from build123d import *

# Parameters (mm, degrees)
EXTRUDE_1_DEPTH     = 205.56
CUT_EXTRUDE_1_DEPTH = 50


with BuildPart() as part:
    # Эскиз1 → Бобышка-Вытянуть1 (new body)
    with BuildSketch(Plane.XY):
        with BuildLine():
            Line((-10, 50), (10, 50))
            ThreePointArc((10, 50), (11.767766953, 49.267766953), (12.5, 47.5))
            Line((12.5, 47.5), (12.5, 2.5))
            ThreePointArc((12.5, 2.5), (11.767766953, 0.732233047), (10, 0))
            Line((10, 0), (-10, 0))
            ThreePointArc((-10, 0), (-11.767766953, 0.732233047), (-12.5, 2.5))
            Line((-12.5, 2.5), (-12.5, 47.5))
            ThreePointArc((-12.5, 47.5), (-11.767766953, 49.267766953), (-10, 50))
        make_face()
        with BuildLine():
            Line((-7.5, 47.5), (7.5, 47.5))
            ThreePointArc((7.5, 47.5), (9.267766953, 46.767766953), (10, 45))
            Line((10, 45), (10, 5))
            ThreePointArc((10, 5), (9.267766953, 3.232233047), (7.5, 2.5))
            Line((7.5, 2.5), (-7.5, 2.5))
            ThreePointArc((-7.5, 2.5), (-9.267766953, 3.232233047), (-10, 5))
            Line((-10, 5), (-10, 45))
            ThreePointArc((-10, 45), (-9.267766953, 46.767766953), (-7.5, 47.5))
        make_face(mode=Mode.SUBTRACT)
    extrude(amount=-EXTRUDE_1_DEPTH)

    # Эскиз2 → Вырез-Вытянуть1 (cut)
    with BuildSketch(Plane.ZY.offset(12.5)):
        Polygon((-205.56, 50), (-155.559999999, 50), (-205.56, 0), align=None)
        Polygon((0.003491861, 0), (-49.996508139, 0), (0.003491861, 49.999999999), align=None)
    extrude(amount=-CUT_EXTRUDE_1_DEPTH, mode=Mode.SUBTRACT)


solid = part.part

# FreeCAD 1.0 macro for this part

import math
import FreeCAD as App
import Part
import Sketcher

doc = App.newDocument("Part")
body = doc.addObject("PartDesign::Body", "Body")

sketch1 = body.newObject("Sketcher::SketchObject", "Sketch")
sketch1.AttachmentSupport = (doc.getObject("XY_Plane"), [""])
sketch1.MapMode = "FlatFace"
sketch1.addGeometry([
    Part.LineSegment(App.Vector(10, 50, 0), App.Vector(-10, 50, 0)),
    Part.ArcOfCircle(Part.Circle(App.Vector(-10, 47.5, 0), App.Vector(0, 0, 1), 2.5), math.radians(90), math.radians(180)),
    Part.LineSegment(App.Vector(-12.5, 47.5, 0), App.Vector(-12.5, 2.5, 0)),
    Part.ArcOfCircle(Part.Circle(App.Vector(-10, 2.5, 0), App.Vector(0, 0, 1), 2.5), math.radians(180), math.radians(270)),
    Part.LineSegment(App.Vector(-10, 0, 0), App.Vector(10, 0, 0)),
    Part.ArcOfCircle(Part.Circle(App.Vector(10, 2.5, 0), App.Vector(0, 0, 1), 2.5), math.radians(-90), math.radians(0)),
    Part.LineSegment(App.Vector(12.5, 2.5, 0), App.Vector(12.5, 47.5, 0)),
    Part.ArcOfCircle(Part.Circle(App.Vector(10, 47.5, 0), App.Vector(0, 0, 1), 2.5), math.radians(0), math.radians(90)),
    Part.LineSegment(App.Vector(-7.5, 47.5, 0), App.Vector(7.5, 47.5, 0)),
    Part.ArcOfCircle(Part.Circle(App.Vector(7.5, 45, 0), App.Vector(0, 0, 1), 2.5), math.radians(0), math.radians(90)),
    Part.LineSegment(App.Vector(10, 45, 0), App.Vector(10, 5, 0)),
    Part.ArcOfCircle(Part.Circle(App.Vector(7.5, 5, 0), App.Vector(0, 0, 1), 2.5), math.radians(-90), math.radians(0)),
    Part.LineSegment(App.Vector(7.5, 2.5, 0), App.Vector(-7.5, 2.5, 0)),
    Part.ArcOfCircle(Part.Circle(App.Vector(-7.5, 5, 0), App.Vector(0, 0, 1), 2.5), math.radians(180), math.radians(270)),
    Part.LineSegment(App.Vector(-10, 5, 0), App.Vector(-10, 45, 0)),
    Part.ArcOfCircle(Part.Circle(App.Vector(-7.5, 45, 0), App.Vector(0, 0, 1), 2.5), math.radians(90), math.radians(180)),
], False)
sketch1.addConstraint([
    Sketcher.Constraint("Tangent", 0, 2, 1, 1),
    Sketcher.Constraint("Tangent", 1, 2, 2, 1),
    Sketcher.Constraint("Tangent", 2, 2, 3, 1),
    Sketcher.Constraint("Tangent", 3, 2, 4, 1),
    Sketcher.Constraint("Tangent", 4, 2, 5, 1),
    Sketcher.Constraint("Tangent", 5, 2, 6, 1),
    Sketcher.Constraint("Tangent", 6, 2, 7, 1),
    Sketcher.Constraint("Tangent", 7, 2, 0, 1),
    Sketcher.Constraint("Tangent", 8, 2, 9, 2),
    Sketcher.Constraint("Tangent", 9, 1, 10, 1),
    Sketcher.Constraint("Tangent", 10, 2, 11, 2),
    Sketcher.Constraint("Tangent", 11, 1, 12, 1),
    Sketcher.Constraint("Tangent", 12, 2, 13, 2),
    Sketcher.Constraint("Tangent", 13, 1, 14, 1),
    Sketcher.Constraint("Tangent", 14, 2, 15, 2),
    Sketcher.Constraint("Tangent", 15, 1, 8, 1),
    Sketcher.Constraint("Horizontal", 0),
    Sketcher.Constraint("Vertical", 2),
    Sketcher.Constraint("Horizontal", 4),
    Sketcher.Constraint("Vertical", 6),
    Sketcher.Constraint("Horizontal", 8),
    Sketcher.Constraint("Vertical", 10),
    Sketcher.Constraint("Horizontal", 12),
    Sketcher.Constraint("Vertical", 14),
    Sketcher.Constraint("Equal", 1, 3),
    Sketcher.Constraint("Equal", 3, 5),
    Sketcher.Constraint("Equal", 5, 7),
    Sketcher.Constraint("Equal", 7, 9),
    Sketcher.Constraint("Equal", 9, 11),
    Sketcher.Constraint("Equal", 11, 13),
    Sketcher.Constraint("Equal", 13, 15),
    Sketcher.Constraint("Symmetric", 3, 2, 4, 2, -1, 1),
    Sketcher.Constraint("Horizontal", 6, 2, 8, 2),
    Sketcher.Constraint("Horizontal", 5, 2, 11, 1),
    Sketcher.Constraint("Vertical", 7, 2, 9, 1),
    Sketcher.Constraint("Vertical", 3, 2, 13, 1),
    Sketcher.Constraint("Radius", 1, 2.5),
    Sketcher.Constraint("DistanceX", 0, 2, 0, 1, 20.0),
    Sketcher.Constraint("DistanceY", 2, 2, 2, 1, 45.0),
])
pad1 = body.newObject("PartDesign::Pad", "Pad")
pad1.Profile = sketch1
pad1.Length = 205.56
pad1.Reversed = True

sketch2 = body.newObject("Sketcher::SketchObject", "Sketch001")
sketch2.AttachmentSupport = (doc.getObject("YZ_Plane"), [""])
sketch2.MapMode = "FlatFace"
sketch2.AttachmentOffset = App.Placement(App.Vector(0, 0, -12.5), App.Rotation())
sketch2.addGeometry([
    Part.LineSegment(App.Vector(50, -156, 0), App.Vector(50, -206, 0)),
    Part.LineSegment(App.Vector(50, -206, 0), App.Vector(0, -206, 0)),
    Part.LineSegment(App.Vector(0, -206, 0), App.Vector(50, -156, 0)),
    Part.LineSegment(App.Vector(0, -50, 0), App.Vector(0, 0, 0)),
    Part.LineSegment(App.Vector(0, 0, 0), App.Vector(50, 0, 0)),
    Part.LineSegment(App.Vector(50, 0, 0), App.Vector(0, -50, 0)),
], False)
sketch2.addConstraint([
    Sketcher.Constraint("Coincident", 0, 2, 1, 1),
    Sketcher.Constraint("Coincident", 1, 2, 2, 1),
    Sketcher.Constraint("Coincident", 2, 2, 0, 1),
    Sketcher.Constraint("Coincident", 3, 2, 4, 1),
    Sketcher.Constraint("Coincident", 4, 2, 5, 1),
    Sketcher.Constraint("Coincident", 5, 2, 3, 1),
    Sketcher.Constraint("Vertical", 0),
    Sketcher.Constraint("Horizontal", 1),
    Sketcher.Constraint("Vertical", 3),
    Sketcher.Constraint("Horizontal", 4),
    Sketcher.Constraint("PointOnObject", 1, 2, -2),
    Sketcher.Constraint("PointOnObject", 3, 2, -2),
    Sketcher.Constraint("Parallel", 2, 5),
    Sketcher.Constraint("Vertical", 2, 2, 4, 2),
    Sketcher.Constraint("Equal", 4, 0),
    Sketcher.Constraint("DistanceX", 1, 2, 1, 1, 50.0),
    Sketcher.Constraint("DistanceY", 0, 2, -1, 1, 205.56),
    Sketcher.Constraint("DistanceY", -1, 1, 3, 2, 0.003492),
])
pocket1 = body.newObject("PartDesign::Pocket", "Pocket")
pocket1.Profile = sketch2
pocket1.Length = 50
pocket1.Reversed = True

doc.recompute()
